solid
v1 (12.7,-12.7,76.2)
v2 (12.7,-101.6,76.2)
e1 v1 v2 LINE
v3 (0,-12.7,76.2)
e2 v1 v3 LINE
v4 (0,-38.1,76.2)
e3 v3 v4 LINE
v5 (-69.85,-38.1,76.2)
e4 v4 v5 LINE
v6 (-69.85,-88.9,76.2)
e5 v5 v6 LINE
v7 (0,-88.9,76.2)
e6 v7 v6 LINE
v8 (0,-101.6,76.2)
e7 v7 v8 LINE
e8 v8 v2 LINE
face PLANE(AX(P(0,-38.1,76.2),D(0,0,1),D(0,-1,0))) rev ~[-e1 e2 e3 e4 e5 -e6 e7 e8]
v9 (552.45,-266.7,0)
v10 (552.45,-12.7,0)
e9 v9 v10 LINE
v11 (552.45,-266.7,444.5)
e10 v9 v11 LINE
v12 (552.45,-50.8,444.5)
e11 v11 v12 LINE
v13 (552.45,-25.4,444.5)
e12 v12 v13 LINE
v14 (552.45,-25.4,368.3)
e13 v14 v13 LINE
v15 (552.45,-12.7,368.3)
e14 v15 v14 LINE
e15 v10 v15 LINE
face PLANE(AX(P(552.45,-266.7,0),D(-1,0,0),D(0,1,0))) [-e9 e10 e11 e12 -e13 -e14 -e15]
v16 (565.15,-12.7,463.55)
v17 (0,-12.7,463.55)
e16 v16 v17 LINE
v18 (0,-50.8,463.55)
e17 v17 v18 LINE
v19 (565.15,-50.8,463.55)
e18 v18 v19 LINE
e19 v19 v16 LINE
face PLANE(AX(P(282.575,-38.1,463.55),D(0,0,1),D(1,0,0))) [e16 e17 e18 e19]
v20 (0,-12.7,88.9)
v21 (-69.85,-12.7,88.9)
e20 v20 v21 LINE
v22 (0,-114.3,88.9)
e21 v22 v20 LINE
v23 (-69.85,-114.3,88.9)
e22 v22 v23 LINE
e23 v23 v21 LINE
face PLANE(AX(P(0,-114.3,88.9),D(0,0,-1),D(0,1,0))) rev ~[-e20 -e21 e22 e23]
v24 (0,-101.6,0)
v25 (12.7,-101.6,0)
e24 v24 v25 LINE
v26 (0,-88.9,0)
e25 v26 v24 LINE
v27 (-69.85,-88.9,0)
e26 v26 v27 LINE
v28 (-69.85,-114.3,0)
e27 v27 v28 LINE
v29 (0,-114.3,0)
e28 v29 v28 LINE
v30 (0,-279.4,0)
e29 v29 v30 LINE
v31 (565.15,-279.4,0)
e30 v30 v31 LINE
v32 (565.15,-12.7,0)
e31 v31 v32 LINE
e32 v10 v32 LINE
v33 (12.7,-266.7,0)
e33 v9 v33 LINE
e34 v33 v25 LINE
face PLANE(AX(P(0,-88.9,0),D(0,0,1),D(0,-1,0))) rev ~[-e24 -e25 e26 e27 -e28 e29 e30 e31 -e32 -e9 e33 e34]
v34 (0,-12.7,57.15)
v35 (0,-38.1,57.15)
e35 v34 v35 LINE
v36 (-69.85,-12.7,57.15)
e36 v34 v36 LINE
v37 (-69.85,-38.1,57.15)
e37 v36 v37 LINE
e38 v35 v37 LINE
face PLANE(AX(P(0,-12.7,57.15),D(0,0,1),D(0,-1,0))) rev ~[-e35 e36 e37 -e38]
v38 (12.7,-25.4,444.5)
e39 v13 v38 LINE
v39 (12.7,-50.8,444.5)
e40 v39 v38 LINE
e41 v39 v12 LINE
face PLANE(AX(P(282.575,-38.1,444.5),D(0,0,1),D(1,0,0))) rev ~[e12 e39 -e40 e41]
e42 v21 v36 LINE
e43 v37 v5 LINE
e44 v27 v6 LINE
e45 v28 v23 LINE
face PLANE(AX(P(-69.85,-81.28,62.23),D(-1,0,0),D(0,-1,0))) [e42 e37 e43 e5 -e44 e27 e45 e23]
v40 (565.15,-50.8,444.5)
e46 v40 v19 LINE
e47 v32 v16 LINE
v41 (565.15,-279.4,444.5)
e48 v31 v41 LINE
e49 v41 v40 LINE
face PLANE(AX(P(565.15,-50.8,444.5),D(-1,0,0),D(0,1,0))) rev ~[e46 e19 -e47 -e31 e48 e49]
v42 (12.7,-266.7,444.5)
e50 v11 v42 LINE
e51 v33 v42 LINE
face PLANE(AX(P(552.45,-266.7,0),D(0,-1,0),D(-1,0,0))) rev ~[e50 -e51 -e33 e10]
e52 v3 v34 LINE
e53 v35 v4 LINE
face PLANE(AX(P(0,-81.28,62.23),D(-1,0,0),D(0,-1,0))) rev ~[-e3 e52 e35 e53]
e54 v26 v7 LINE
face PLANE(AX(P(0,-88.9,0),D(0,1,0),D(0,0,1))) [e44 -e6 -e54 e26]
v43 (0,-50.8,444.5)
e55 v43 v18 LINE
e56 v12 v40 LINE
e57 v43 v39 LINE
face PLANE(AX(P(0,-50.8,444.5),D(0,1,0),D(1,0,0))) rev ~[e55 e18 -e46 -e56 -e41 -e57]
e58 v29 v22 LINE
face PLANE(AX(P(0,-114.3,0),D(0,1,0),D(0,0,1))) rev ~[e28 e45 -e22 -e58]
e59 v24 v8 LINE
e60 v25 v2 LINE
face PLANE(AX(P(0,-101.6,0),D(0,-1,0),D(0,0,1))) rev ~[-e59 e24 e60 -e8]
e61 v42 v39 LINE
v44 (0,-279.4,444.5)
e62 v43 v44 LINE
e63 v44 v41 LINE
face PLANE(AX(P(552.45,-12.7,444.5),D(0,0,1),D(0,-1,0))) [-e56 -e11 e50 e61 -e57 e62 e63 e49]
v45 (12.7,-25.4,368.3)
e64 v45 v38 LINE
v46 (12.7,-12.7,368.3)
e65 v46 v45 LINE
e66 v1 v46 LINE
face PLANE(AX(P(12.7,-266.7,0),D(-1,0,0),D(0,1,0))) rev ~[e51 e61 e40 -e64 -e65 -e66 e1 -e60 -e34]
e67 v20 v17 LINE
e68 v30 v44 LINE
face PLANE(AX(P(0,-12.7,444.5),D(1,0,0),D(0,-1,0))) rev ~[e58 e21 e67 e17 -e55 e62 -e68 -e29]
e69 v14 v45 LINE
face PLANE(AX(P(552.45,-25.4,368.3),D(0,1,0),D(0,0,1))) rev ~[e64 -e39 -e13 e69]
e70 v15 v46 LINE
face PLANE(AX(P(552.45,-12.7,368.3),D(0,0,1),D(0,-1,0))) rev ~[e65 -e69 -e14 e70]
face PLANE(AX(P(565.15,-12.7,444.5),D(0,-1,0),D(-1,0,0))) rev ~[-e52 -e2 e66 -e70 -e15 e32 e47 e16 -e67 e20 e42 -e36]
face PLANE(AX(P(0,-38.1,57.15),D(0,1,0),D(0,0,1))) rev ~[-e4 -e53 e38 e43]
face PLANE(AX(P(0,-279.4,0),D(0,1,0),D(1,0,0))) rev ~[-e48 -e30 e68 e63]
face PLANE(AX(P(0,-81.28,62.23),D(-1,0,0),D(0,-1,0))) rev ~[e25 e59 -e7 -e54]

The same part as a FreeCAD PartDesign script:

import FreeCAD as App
import Part
import Sketcher

V = App.Vector
Q = App.Units.Quantity

doc = App.newDocument("Part")
body = doc.addObject("PartDesign::Body", "Body")

# Sketch on XY plane
sketch1 = doc.addObject("Sketcher::SketchObject", "Sketch")
body.addObject(sketch1)
sketch1.AttachmentSupport = (doc.XY_Plane, [""])
sketch1.MapMode = "FlatFace"
sketch1.addGeometry(Part.LineSegment(V(0, -13, 0), V(0, -279, 0)), False)
sketch1.addGeometry(Part.LineSegment(V(0, -279, 0), V(565, -279, 0)), False)
sketch1.addGeometry(Part.LineSegment(V(565, -279, 0), V(565, -13, 0)), False)
sketch1.addGeometry(Part.LineSegment(V(565, -13, 0), V(552, -13, 0)), False)
sketch1.addGeometry(Part.LineSegment(V(552, -13, 0), V(552, -267, 0)), False)
sketch1.addGeometry(Part.LineSegment(V(552, -267, 0), V(13, -267, 0)), False)
sketch1.addGeometry(Part.LineSegment(V(13, -267, 0), V(13, -13, 0)), False)
sketch1.addGeometry(Part.LineSegment(V(13, -13, 0), V(0, -13, 0)), False)
sketch1.addConstraint(Sketcher.Constraint("Coincident", 0, 2, 1, 1))
sketch1.addConstraint(Sketcher.Constraint("Coincident", 1, 2, 2, 1))
sketch1.addConstraint(Sketcher.Constraint("Coincident", 2, 2, 3, 1))
sketch1.addConstraint(Sketcher.Constraint("Coincident", 3, 2, 4, 1))
sketch1.addConstraint(Sketcher.Constraint("Coincident", 4, 2, 5, 1))
sketch1.addConstraint(Sketcher.Constraint("Coincident", 5, 2, 6, 1))
sketch1.addConstraint(Sketcher.Constraint("Coincident", 6, 2, 7, 1))
sketch1.addConstraint(Sketcher.Constraint("Coincident", 7, 2, 0, 1))
sketch1.addConstraint(Sketcher.Constraint("Vertical", 0))
sketch1.addConstraint(Sketcher.Constraint("Horizontal", 1))
sketch1.addConstraint(Sketcher.Constraint("Vertical", 2))
sketch1.addConstraint(Sketcher.Constraint("Horizontal", 3))
sketch1.addConstraint(Sketcher.Constraint("Vertical", 4))
sketch1.addConstraint(Sketcher.Constraint("Horizontal", 5))
sketch1.addConstraint(Sketcher.Constraint("Vertical", 6))
sketch1.addConstraint(Sketcher.Constraint("Horizontal", 7))
sketch1.addConstraint(Sketcher.Constraint("PointOnObject", 0, 2, -2))
sketch1.addConstraint(Sketcher.Constraint("Horizontal", 3, 2, 6, 2))
sketch1.addConstraint(Sketcher.Constraint("Equal", 3, 7))
sketch1.addConstraint(Sketcher.Constraint("DistanceY", 4, 2, 4, 1, Q("10 in")))
sketch1.addConstraint(Sketcher.Constraint("DistanceX", 3, 2, 3, 1, Q("0.5 in")))
sketch1.addConstraint(Sketcher.Constraint("DistanceY", 0, 2, 0, 1, Q("10.5 in")))
sketch1.addConstraint(Sketcher.Constraint("DistanceY", 0, 2, -1, 1, Q("11 in")))
sketch1.addConstraint(Sketcher.Constraint("DistanceX", 1, 1, 1, 2, Q("22.25 in")))
pad1 = doc.addObject("PartDesign::Pad", "Pad")
body.addObject(pad1)
pad1.Profile = sketch1
pad1.Length = Q("17.5 in")

# Sketch on YZ plane
sketch2 = doc.addObject("Sketcher::SketchObject", "Sketch001")
body.addObject(sketch2)
sketch2.AttachmentSupport = (doc.YZ_Plane, [""])
sketch2.MapMode = "FlatFace"
sketch2.addGeometry(Part.LineSegment(V(0, 76, 0), V(0, 0, 0)), False)
sketch2.addGeometry(Part.LineSegment(V(0, 0, 0), V(-102, 0, 0)), False)
sketch2.addGeometry(Part.LineSegment(V(-102, 0, 0), V(-102, 76, 0)), False)
sketch2.addGeometry(Part.LineSegment(V(-102, 76, 0), V(0, 76, 0)), False)
sketch2.addConstraint(Sketcher.Constraint("Coincident", 0, 2, 1, 1))
sketch2.addConstraint(Sketcher.Constraint("Coincident", 1, 2, 2, 1))
sketch2.addConstraint(Sketcher.Constraint("Coincident", 2, 2, 3, 1))
sketch2.addConstraint(Sketcher.Constraint("Coincident", 3, 2, 0, 1))
sketch2.addConstraint(Sketcher.Constraint("Vertical", 0))
sketch2.addConstraint(Sketcher.Constraint("Horizontal", 1))
sketch2.addConstraint(Sketcher.Constraint("Vertical", 2))
sketch2.addConstraint(Sketcher.Constraint("Horizontal", 3))
sketch2.addConstraint(Sketcher.Constraint("Coincident", 0, 2, -1, 1))
sketch2.addConstraint(Sketcher.Constraint("DistanceX", 1, 2, 1, 1, Q("4 in")))
sketch2.addConstraint(Sketcher.Constraint("DistanceY", 0, 2, 0, 1, Q("3 in")))
pocket1 = doc.addObject("PartDesign::Pocket", "Pocket")
body.addObject(pocket1)
pocket1.Profile = sketch2
pocket1.Length = Q("0.5 in")
pocket1.Reversed = True

# Sketch on YZ plane
sketch3 = doc.addObject("Sketcher::SketchObject", "Sketch002")
body.addObject(sketch3)
sketch3.AttachmentSupport = (doc.YZ_Plane, [""])
sketch3.MapMode = "FlatFace"
sketch3.addGeometry(Part.LineSegment(V(-114, 0, 0), V(-114, 89, 0)), False)
sketch3.addGeometry(Part.LineSegment(V(-114, 89, 0), V(-13, 89, 0)), False)
sketch3.addGeometry(Part.LineSegment(V(-13, 89, 0), V(-13, 57, 0)), False)
sketch3.addGeometry(Part.LineSegment(V(-13, 57, 0), V(-38, 57, 0)), False)
sketch3.addGeometry(Part.LineSegment(V(-38, 57, 0), V(-38, 76, 0)), False)
sketch3.addGeometry(Part.LineSegment(V(-38, 76, 0), V(-89, 76, 0)), False)
sketch3.addGeometry(Part.LineSegment(V(-89, 76, 0), V(-89, 0, 0)), False)
sketch3.addGeometry(Part.LineSegment(V(-89, 0, 0), V(-114, 0, 0)), False)
sketch3.addConstraint(Sketcher.Constraint("Coincident", 0, 2, 1, 1))
sketch3.addConstraint(Sketcher.Constraint("Coincident", 1, 2, 2, 1))
sketch3.addConstraint(Sketcher.Constraint("Coincident", 2, 2, 3, 1))
sketch3.addConstraint(Sketcher.Constraint("Coincident", 3, 2, 4, 1))
sketch3.addConstraint(Sketcher.Constraint("Coincident", 4, 2, 5, 1))
sketch3.addConstraint(Sketcher.Constraint("Coincident", 5, 2, 6, 1))
sketch3.addConstraint(Sketcher.Constraint("Coincident", 6, 2, 7, 1))
sketch3.addConstraint(Sketcher.Constraint("Coincident", 7, 2, 0, 1))
sketch3.addConstraint(Sketcher.Constraint("Vertical", 0))
sketch3.addConstraint(Sketcher.Constraint("Horizontal", 1))
sketch3.addConstraint(Sketcher.Constraint("Vertical", 2))
sketch3.addConstraint(Sketcher.Constraint("Horizontal", 3))
sketch3.addConstraint(Sketcher.Constraint("Vertical", 4))
sketch3.addConstraint(Sketcher.Constraint("Horizontal", 5))
sketch3.addConstraint(Sketcher.Constraint("Vertical", 6))
sketch3.addConstraint(Sketcher.Constraint("Horizontal", 7))
sketch3.addConstraint(Sketcher.Constraint("PointOnObject", 6, 2, -1))
sketch3.addConstraint(Sketcher.Constraint("Equal", 3, 7))
sketch3.addConstraint(Sketcher.Constraint("DistanceX", 1, 1, 1, 2, Q("4 in")))
sketch3.addConstraint(Sketcher.Constraint("DistanceX", 3, 2, 3, 1, Q("1 in")))
sketch3.addConstraint(Sketcher.Constraint("DistanceY", 6, 2, 6, 1, Q("3 in")))
sketch3.addConstraint(Sketcher.Constraint("DistanceY", 0, 1, 0, 2, Q("3.5 in")))
sketch3.addConstraint(Sketcher.Constraint("DistanceY", 2, 2, 2, 1, Q("1.25 in")))
sketch3.addConstraint(Sketcher.Constraint("DistanceX", 0, 2, -1, 1, Q("4.5 in")))
pad2 = doc.addObject("PartDesign::Pad", "Pad001")
body.addObject(pad2)
pad2.Profile = sketch3
pad2.Length = Q("2.75 in")
pad2.Reversed = True

# Sketch on YZ plane
sketch4 = doc.addObject("Sketcher::SketchObject", "Sketch003")
body.addObject(sketch4)
sketch4.AttachmentSupport = (doc.YZ_Plane, [""])
sketch4.MapMode = "FlatFace"
sketch4.AttachmentOffset = App.Placement(V(0, 0, 21.75 * 25.4), App.Rotation())
sketch4.addGeometry(Part.LineSegment(V(-13, 444, 0), V(-13, 368, 0)), False)
sketch4.addGeometry(Part.LineSegment(V(-13, 368, 0), V(-25, 368, 0)), False)
sketch4.addGeometry(Part.LineSegment(V(-25, 368, 0), V(-25, 444, 0)), False)
sketch4.addGeometry(Part.LineSegment(V(-25, 444, 0), V(-13, 444, 0)), False)
sketch4.addConstraint(Sketcher.Constraint("Coincident", 0, 2, 1, 1))
sketch4.addConstraint(Sketcher.Constraint("Coincident", 1, 2, 2, 1))
sketch4.addConstraint(Sketcher.Constraint("Coincident", 2, 2, 3, 1))
sketch4.addConstraint(Sketcher.Constraint("Coincident", 3, 2, 0, 1))
sketch4.addConstraint(Sketcher.Constraint("Vertical", 0))
sketch4.addConstraint(Sketcher.Constraint("Horizontal", 1))
sketch4.addConstraint(Sketcher.Constraint("Vertical", 2))
sketch4.addConstraint(Sketcher.Constraint("Horizontal", 3))
sketch4.addConstraint(Sketcher.Constraint("DistanceY", 0, 2, 0, 1, Q("3 in")))
sketch4.addConstraint(Sketcher.Constraint("DistanceX", 1, 2, 1, 1, Q("0.5 in")))
sketch4.addConstraint(Sketcher.Constraint("DistanceX", 1, 2, -1, 1, Q("1 in")))
sketch4.addConstraint(Sketcher.Constraint("DistanceY", -1, 1, 0, 2, Q("14.5 in")))
pad3 = doc.addObject("PartDesign::Pad", "Pad002")
body.addObject(pad3)
pad3.Profile = sketch4
pad3.Type = "UpToLast"
pad3.Reversed = True

# Sketch on XY plane
sketch5 = doc.addObject("Sketcher::SketchObject", "Sketch004")
body.addObject(sketch5)
sketch5.AttachmentSupport = (doc.XY_Plane, [""])
sketch5.MapMode = "FlatFace"
sketch5.AttachmentOffset = App.Placement(V(0, 0, 17.5 * 25.4), App.Rotation())
sketch5.addGeometry(Part.LineSegment(V(565, -51, 0), V(565, -13, 0)), False)
sketch5.addGeometry(Part.LineSegment(V(565, -13, 0), V(0, -13, 0)), False)
sketch5.addGeometry(Part.LineSegment(V(0, -13, 0), V(0, -51, 0)), False)
sketch5.addGeometry(Part.LineSegment(V(0, -51, 0), V(565, -51, 0)), False)
sketch5.addConstraint(Sketcher.Constraint("Coincident", 0, 2, 1, 1))
sketch5.addConstraint(Sketcher.Constraint("Coincident", 1, 2, 2, 1))
sketch5.addConstraint(Sketcher.Constraint("Coincident", 2, 2, 3, 1))
sketch5.addConstraint(Sketcher.Constraint("Coincident", 3, 2, 0, 1))
sketch5.addConstraint(Sketcher.Constraint("Vertical", 0))
sketch5.addConstraint(Sketcher.Constraint("Horizontal", 1))
sketch5.addConstraint(Sketcher.Constraint("Vertical", 2))
sketch5.addConstraint(Sketcher.Constraint("Horizontal", 3))
sketch5.addConstraint(Sketcher.Constraint("PointOnObject", 1, 2, -2))
sketch5.addConstraint(Sketcher.Constraint("DistanceY", 0, 1, 0, 2, Q("1.5 in")))
sketch5.addConstraint(Sketcher.Constraint("DistanceY", 2, 2, -1, 1, Q("2 in")))
sketch5.addConstraint(Sketcher.Constraint("DistanceX", 1, 2, 1, 1, Q("22.25 in")))
pad4 = doc.addObject("PartDesign::Pad", "Pad003")
body.addObject(pad4)
pad4.Profile = sketch5
pad4.Length = Q("0.75 in")

doc.recompute()
